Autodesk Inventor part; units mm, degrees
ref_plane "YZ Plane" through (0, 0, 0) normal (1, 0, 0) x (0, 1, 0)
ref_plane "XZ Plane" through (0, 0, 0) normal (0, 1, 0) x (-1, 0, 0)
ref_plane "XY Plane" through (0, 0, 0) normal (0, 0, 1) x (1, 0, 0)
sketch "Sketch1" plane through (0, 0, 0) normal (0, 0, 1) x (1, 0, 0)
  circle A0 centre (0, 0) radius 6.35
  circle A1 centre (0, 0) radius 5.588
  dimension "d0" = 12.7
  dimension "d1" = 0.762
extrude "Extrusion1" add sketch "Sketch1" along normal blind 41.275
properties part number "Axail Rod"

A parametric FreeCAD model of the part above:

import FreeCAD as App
import Part
import Sketcher
Q = App.Units.Quantity

doc = App.newDocument("Part")
body = doc.addObject("PartDesign::Body", "Body")

sketch1 = doc.addObject("Sketcher::SketchObject", "Sketch")
body.addObject(sketch1)
sketch1.AttachmentSupport = (doc.XY_Plane, [""])
sketch1.MapMode = "FlatFace"
sketch1.addGeometry([
    Part.Circle(App.Vector(0, 0, 0), App.Vector(0, 0, 1), 6.35),
    Part.Circle(App.Vector(0, 0, 0), App.Vector(0, 0, 1), 5.588),
], False)
sketch1.addConstraint([
    Sketcher.Constraint("Coincident", 0, 3, -1, 1),
    Sketcher.Constraint("Coincident", 1, 3, -1, 1),
    Sketcher.Constraint("Diameter", 0, Q("0.5 in")),
    Sketcher.Constraint("Diameter", 1, Q("0.44 in")),
])
pad1 = doc.addObject("PartDesign::Pad", "Pad")
body.addObject(pad1)
pad1.Profile = sketch1
pad1.Length = Q("1.625 in")

doc.recompute()
